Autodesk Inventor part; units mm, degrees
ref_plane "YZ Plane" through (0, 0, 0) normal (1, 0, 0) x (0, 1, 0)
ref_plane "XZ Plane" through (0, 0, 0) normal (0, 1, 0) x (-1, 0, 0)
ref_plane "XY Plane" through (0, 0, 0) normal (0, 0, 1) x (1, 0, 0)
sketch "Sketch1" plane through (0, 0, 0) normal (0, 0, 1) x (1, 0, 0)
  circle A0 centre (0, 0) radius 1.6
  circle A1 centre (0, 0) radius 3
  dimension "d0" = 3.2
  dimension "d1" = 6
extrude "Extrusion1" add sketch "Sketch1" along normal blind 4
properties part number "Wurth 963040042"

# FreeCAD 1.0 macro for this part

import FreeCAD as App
import Part
import Sketcher

V = App.Vector

doc = App.newDocument("Part")
body = doc.addObject("PartDesign::Body", "Body")

sketch1 = body.newObject("Sketcher::SketchObject", "Sketch")
sketch1.AttachmentSupport = (doc.getObject("XY_Plane"), [""])
sketch1.MapMode = "FlatFace"
sketch1.addGeometry(Part.Circle(V(0, 0, 0), V(0, 0, 1), 3), False)
sketch1.addGeometry(Part.Circle(V(0, 0, 0), V(0, 0, 1), 1.6), False)
sketch1.addConstraint(Sketcher.Constraint("Coincident", 0, 3, -1, 1))
sketch1.addConstraint(Sketcher.Constraint("Coincident", 1, 3, -1, 1))
sketch1.addConstraint(Sketcher.Constraint("Diameter", 0, 6.0))
sketch1.addConstraint(Sketcher.Constraint("Diameter", 1, 3.2))
pad1 = body.newObject("PartDesign::Pad", "Pad")
pad1.Profile = sketch1
pad1.Length = 4

doc.recompute()
